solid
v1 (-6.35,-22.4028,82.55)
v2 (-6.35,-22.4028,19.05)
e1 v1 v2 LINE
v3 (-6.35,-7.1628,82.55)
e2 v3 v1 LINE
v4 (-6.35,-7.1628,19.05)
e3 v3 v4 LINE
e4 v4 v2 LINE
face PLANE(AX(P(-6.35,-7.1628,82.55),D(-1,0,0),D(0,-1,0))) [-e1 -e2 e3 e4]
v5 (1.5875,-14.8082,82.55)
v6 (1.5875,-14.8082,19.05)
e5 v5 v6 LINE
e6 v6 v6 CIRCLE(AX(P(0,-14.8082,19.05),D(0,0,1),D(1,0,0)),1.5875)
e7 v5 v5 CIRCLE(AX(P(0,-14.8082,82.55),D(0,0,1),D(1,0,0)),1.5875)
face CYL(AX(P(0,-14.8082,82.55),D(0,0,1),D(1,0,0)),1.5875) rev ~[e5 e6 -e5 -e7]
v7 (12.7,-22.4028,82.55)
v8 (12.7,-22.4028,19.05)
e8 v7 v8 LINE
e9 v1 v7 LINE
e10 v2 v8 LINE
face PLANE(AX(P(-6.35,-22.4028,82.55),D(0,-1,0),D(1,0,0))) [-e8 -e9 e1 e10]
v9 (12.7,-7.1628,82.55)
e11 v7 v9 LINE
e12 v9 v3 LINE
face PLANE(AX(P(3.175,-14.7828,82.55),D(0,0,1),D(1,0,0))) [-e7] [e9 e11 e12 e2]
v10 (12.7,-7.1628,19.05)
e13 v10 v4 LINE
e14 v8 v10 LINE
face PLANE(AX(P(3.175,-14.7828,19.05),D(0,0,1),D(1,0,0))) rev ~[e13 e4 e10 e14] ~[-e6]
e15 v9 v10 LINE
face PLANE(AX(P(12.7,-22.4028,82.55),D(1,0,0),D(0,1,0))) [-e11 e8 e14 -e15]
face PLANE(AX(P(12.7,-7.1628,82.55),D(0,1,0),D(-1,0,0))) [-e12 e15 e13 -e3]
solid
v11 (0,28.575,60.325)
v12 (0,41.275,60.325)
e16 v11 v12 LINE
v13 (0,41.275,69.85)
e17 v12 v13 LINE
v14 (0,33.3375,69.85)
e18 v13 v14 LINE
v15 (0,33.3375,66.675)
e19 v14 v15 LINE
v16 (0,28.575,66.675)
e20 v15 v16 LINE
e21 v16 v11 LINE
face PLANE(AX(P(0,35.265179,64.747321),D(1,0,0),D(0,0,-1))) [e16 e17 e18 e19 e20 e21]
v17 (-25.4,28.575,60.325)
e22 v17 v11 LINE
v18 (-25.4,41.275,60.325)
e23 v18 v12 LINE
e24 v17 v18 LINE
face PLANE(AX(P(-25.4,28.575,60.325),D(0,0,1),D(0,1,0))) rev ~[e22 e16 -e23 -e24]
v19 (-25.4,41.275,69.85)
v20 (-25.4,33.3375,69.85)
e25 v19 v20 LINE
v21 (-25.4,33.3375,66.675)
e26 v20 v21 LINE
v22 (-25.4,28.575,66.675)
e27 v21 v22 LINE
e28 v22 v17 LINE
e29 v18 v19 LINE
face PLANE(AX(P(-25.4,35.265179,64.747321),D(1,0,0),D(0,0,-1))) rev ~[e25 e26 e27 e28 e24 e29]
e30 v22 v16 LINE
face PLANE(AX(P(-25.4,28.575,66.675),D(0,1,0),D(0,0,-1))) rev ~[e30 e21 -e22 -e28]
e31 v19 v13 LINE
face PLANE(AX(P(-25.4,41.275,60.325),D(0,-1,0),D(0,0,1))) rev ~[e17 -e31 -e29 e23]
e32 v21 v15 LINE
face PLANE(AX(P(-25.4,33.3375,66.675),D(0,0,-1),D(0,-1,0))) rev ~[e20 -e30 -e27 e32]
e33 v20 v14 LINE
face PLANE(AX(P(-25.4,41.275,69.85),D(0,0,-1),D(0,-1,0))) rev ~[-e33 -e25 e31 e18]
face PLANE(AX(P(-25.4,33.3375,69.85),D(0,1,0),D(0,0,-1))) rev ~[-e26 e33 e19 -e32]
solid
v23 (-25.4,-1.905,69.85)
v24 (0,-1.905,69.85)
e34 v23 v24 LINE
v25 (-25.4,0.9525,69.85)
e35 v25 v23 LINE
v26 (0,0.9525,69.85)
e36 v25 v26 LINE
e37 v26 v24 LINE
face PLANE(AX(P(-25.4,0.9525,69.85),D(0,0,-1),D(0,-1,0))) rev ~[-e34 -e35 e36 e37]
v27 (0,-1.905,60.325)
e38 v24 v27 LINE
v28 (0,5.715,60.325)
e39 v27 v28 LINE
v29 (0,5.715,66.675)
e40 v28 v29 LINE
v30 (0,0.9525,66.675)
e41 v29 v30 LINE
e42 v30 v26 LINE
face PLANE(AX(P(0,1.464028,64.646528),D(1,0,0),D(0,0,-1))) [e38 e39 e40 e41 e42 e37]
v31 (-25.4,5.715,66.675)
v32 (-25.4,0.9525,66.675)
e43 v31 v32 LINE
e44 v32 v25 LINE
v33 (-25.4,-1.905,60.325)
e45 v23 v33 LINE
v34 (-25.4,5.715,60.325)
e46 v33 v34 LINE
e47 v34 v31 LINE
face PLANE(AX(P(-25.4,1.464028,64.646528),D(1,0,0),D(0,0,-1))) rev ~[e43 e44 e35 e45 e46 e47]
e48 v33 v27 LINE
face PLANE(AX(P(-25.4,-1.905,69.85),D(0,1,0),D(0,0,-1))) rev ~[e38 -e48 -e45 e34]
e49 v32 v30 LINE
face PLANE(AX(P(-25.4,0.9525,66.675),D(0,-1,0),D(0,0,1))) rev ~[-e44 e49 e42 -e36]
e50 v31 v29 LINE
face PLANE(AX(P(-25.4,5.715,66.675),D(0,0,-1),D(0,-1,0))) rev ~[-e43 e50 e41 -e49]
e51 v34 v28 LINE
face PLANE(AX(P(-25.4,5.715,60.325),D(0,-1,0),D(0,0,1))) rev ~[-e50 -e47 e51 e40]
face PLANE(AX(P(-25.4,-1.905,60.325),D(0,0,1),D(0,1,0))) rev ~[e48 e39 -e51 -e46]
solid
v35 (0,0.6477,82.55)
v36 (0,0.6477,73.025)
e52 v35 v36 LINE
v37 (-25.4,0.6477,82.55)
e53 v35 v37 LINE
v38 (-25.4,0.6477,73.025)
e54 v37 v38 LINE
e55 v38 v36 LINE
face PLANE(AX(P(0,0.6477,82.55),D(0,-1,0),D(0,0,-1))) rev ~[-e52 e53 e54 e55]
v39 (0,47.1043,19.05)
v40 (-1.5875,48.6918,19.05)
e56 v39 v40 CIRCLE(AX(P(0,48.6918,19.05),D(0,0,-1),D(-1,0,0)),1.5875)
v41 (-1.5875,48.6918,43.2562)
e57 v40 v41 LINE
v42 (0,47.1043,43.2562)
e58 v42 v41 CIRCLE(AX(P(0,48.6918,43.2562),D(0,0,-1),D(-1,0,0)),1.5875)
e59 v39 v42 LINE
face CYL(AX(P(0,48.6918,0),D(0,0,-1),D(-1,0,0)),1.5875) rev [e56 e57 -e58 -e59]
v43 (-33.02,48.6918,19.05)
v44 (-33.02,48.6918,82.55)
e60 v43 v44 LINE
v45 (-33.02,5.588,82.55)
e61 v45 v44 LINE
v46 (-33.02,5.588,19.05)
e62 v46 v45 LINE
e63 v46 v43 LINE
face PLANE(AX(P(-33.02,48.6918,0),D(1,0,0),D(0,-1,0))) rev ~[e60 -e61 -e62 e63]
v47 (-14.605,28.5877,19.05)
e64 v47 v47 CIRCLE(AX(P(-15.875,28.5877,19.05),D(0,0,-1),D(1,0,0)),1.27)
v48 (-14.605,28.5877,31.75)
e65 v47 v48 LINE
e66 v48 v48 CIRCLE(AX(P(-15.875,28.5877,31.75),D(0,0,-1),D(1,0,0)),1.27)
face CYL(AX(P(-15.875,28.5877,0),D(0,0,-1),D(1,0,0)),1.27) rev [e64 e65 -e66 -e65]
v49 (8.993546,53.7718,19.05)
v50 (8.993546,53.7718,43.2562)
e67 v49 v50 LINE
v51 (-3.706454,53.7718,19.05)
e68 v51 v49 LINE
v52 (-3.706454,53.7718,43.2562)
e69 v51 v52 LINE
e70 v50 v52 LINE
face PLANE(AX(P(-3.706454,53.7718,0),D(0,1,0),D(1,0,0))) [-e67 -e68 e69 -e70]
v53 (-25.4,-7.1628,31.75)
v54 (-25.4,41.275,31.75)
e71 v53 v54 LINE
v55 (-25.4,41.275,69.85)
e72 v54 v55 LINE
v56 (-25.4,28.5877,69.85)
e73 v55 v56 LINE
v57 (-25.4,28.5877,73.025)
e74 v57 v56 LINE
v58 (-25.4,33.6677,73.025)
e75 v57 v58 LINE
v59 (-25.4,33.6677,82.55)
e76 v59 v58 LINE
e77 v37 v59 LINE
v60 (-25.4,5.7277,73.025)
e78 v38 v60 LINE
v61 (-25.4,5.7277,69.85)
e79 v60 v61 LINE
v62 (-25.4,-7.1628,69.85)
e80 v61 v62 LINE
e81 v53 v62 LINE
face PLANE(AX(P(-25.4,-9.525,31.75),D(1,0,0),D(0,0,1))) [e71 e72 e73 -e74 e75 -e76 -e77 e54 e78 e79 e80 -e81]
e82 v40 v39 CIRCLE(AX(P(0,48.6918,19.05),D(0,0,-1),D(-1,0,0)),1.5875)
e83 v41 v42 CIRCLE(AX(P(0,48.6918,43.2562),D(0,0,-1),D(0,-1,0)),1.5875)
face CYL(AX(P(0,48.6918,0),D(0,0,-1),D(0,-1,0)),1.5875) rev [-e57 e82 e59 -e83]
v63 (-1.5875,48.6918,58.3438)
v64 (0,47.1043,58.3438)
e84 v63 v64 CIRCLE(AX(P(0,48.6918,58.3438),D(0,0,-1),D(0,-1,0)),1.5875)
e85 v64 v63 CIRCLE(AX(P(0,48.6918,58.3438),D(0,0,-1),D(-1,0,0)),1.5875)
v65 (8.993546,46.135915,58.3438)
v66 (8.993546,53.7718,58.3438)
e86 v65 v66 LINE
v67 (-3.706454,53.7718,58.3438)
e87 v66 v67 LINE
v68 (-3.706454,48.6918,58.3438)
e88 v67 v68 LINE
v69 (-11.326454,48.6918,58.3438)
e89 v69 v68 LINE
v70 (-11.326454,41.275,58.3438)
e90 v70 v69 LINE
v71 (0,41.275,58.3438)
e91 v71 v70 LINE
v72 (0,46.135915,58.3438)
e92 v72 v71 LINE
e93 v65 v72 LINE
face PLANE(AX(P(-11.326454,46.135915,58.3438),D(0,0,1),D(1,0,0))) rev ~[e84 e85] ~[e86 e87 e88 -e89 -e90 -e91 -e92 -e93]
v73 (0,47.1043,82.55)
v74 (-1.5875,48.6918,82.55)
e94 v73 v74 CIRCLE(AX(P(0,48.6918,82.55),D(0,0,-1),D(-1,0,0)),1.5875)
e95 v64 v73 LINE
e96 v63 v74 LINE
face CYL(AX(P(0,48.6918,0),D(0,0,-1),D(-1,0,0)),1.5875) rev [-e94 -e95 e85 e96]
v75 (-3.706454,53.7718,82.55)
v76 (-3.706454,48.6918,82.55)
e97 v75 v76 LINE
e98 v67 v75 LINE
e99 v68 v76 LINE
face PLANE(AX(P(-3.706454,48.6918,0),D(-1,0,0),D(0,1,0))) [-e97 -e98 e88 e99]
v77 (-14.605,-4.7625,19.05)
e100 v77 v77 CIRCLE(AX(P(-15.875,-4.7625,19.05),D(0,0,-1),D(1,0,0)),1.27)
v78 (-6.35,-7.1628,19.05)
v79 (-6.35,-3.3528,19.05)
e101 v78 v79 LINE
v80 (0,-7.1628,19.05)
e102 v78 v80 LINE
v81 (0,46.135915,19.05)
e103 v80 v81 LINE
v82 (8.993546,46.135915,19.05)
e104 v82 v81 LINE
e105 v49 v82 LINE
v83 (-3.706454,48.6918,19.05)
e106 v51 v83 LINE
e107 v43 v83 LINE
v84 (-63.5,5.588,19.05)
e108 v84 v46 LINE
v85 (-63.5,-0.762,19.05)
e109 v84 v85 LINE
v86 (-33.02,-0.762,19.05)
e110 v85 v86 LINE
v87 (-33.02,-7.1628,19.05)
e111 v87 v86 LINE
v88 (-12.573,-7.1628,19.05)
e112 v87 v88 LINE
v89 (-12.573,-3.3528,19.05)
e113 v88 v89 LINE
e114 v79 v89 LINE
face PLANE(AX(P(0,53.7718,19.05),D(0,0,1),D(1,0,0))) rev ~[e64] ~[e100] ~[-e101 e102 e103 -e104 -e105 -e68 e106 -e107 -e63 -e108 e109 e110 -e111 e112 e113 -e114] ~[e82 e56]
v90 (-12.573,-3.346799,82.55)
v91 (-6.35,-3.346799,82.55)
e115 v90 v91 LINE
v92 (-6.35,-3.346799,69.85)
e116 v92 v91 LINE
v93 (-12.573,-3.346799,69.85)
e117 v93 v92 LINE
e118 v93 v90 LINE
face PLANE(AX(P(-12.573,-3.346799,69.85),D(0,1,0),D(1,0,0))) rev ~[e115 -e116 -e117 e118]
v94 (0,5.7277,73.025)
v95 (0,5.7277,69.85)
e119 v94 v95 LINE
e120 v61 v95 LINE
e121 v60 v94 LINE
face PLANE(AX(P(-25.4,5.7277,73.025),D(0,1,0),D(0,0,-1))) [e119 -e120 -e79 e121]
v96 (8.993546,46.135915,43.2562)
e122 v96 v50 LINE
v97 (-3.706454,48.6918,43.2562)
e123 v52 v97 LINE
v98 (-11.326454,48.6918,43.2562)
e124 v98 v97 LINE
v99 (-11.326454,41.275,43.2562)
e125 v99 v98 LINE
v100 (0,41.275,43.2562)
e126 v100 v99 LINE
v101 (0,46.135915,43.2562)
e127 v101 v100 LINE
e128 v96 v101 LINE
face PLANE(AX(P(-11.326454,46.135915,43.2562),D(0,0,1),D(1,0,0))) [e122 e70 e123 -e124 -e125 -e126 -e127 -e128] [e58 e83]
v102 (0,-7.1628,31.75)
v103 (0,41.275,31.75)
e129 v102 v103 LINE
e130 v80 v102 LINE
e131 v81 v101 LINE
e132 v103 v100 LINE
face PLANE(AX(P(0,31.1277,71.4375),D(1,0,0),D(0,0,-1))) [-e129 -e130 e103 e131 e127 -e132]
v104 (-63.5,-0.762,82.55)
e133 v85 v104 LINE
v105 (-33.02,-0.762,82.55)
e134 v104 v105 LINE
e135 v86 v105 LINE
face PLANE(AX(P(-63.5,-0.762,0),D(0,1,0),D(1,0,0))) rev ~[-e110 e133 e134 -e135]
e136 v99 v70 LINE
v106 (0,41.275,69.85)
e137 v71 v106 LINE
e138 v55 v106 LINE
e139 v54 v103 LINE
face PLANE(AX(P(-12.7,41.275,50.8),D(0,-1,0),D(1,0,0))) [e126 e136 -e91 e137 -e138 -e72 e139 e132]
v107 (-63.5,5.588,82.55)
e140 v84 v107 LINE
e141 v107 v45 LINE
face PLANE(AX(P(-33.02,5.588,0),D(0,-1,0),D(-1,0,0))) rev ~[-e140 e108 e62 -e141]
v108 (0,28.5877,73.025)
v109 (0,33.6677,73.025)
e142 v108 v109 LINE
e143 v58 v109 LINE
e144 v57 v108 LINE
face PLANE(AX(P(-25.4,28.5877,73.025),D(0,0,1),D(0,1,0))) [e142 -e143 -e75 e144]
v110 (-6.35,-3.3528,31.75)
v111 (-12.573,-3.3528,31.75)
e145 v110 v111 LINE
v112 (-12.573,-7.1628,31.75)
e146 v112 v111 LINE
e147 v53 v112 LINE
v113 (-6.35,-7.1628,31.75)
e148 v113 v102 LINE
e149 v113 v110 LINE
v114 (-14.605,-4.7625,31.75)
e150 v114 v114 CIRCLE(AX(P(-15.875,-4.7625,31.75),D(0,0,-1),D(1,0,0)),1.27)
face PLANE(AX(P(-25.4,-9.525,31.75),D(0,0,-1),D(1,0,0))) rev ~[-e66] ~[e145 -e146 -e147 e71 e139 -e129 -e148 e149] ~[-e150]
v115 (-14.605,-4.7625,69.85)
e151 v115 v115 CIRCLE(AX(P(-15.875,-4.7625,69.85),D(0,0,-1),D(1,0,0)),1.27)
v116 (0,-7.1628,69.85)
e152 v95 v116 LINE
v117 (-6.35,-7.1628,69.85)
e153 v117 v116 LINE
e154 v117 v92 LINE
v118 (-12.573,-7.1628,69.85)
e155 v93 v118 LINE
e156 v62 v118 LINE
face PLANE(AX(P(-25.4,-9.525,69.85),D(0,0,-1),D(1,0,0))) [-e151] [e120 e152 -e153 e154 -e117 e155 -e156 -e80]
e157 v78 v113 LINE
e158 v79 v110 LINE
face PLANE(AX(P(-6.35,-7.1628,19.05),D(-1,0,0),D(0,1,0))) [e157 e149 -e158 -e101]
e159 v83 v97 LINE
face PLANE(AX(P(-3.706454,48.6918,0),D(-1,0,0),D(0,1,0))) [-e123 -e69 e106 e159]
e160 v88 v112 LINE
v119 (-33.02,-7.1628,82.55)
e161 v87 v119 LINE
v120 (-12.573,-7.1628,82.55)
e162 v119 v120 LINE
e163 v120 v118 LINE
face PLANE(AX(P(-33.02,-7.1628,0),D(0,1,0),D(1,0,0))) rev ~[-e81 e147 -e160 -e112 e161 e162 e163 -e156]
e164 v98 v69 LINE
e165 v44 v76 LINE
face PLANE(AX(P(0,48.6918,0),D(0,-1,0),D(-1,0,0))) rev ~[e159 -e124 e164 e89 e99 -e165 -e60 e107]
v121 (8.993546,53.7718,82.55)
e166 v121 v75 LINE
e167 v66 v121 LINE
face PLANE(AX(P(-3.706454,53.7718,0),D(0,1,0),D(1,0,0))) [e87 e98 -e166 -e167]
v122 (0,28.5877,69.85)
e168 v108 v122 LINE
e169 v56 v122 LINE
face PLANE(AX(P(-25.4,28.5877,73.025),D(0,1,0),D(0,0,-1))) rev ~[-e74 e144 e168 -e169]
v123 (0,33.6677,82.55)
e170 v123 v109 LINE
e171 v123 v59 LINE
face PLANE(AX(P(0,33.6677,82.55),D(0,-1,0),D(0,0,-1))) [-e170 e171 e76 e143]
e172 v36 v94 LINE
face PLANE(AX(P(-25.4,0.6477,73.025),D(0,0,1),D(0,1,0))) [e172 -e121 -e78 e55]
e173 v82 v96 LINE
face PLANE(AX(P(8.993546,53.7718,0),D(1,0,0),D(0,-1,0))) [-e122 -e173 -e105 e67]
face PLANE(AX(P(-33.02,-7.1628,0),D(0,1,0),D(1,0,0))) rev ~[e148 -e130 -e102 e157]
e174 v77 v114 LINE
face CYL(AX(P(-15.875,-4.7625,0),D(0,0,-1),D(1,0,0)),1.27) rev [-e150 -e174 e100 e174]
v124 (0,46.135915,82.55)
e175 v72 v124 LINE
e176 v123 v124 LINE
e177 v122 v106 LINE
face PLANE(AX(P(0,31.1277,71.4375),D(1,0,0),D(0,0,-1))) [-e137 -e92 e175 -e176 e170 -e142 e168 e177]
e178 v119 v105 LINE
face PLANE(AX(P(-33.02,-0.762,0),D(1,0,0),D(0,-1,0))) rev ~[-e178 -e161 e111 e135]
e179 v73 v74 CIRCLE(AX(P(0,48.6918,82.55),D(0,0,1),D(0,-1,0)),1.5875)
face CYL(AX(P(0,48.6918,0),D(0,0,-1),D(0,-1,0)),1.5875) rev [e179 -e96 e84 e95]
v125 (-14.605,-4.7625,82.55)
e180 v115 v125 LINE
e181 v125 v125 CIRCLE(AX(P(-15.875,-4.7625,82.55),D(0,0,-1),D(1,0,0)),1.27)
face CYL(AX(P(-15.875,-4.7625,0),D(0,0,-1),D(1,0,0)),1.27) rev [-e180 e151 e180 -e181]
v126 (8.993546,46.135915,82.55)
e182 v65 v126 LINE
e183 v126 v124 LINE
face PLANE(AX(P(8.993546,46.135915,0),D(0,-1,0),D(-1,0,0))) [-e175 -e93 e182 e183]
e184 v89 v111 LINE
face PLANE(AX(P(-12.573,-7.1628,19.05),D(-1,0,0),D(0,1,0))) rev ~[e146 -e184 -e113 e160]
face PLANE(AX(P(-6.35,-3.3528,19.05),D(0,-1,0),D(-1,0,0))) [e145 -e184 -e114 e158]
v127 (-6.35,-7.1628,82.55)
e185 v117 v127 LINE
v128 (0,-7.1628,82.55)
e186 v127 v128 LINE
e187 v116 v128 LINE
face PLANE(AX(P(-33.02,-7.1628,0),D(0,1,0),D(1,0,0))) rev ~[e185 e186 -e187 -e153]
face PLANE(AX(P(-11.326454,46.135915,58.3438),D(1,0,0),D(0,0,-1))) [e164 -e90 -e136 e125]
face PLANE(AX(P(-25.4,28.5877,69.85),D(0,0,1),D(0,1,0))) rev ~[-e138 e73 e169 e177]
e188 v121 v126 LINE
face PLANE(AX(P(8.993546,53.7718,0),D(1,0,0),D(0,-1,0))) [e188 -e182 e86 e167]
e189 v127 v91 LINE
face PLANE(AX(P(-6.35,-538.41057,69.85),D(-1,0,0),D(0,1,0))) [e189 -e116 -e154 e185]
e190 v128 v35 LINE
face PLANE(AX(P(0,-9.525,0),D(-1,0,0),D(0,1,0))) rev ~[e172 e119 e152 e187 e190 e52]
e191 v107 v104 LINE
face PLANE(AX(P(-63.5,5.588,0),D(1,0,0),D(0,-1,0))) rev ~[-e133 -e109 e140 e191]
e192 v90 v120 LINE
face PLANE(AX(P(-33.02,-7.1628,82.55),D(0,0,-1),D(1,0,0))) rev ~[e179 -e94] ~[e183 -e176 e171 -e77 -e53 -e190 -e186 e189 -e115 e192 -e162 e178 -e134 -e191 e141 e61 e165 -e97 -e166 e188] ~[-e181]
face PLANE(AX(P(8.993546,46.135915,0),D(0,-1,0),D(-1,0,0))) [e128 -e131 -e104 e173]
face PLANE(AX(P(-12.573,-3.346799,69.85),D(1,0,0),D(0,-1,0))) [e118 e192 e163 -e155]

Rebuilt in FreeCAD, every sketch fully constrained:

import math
import FreeCAD as App
import Part
import Sketcher

V = App.Vector
Q = App.Units.Quantity


def add_polygon(sketch, points):
    """Adds a closed chain of lines whose ends are joined by coincident constraints."""
    first, n = sketch.GeometryCount, len(points)
    for a, b in zip(points, points[1:] + points[:1]):
        sketch.addGeometry(Part.LineSegment(App.Vector(*a, 0), App.Vector(*b, 0)), False)
    for i in range(n):
        sketch.addConstraint(Sketcher.Constraint("Coincident", first + i, 2, first + (i + 1) % n, 1))

doc = App.newDocument("Part")
params = doc.addObject("Spreadsheet::Sheet", "Params")
for row, (alias, value) in enumerate([
    ("sketch1_diameter", "0.1 in"),
    ("sketch1_width", "1.3 in"),
    ("sketch1_width2", "1.2 in"),
    ("sketch1_height", "0.25 in"),
    ("sketch1_height2", "1.697 in"),
    ("pad1_length", "4 in"),
    ("sketch2_width", "1 in"),
    ("sketch2_height", "1.5 in"),
    ("pocket1_length", "2 in"),
    ("sketch3_width", "1.3 in"),
    ("sketch3_height", "0.093 in"),
    ("sketch4_width", "0.5 in"),
    ("sketch4_height", "0.2 in"),
    ("sketch4_radius", "0.0625 in"),
    ("pad2_length", "4 in"),
    ("sketch5_diameter", "0.125 in"),
    ("pocket3_length", "4 in"),
    ("sketch6_width", "1.3 in"),
    ("sketch6_height", "0.75 in"),
    ("sketch7_height", "0.75 in"),
    ("sketch8_height", "0.594 in"),
    ("pocket6_length", "0.8 in"),
    ("sketch9_width", "1.2 in"),
    ("sketch9_height", "0.75 in"),
    ("sketch10_width", "1.3 in"),
    ("sketch10_height", "0.5 in"),
    ("pocket8_length", "1 in"),
    ("sketch11_width", "0.2 in"),
    ("sketch11_height", "0.125 in"),
    ("pad3_length", "1 in"),
    ("sketch12_width", "0.245 in"),
    ("pocket9_length", "105.670466 mm"),
    ("pocket9_length2", "0.5 in"),
    ("sketch13_height", "0.15 in"),
    ("sketch13_width", "0.245 in"),
    ("pocket10_length", "0.5 in"),
    ("sketch14_height", "0.594 in"),
    ("pocket11_length", "0.192 in"),
    ("sketch15_width", "0.3 in"),
    ("sketch15_height", "0.25 in"),
    ("sketch15_width2", "0.1875 in"),
    ("sketch15_height2", "0.125 in"),
    ("pad4_length", "1 in"),
    ("sketch16_width", "0.5 in"),
    ("sketch16_height", "0.25 in"),
    ("sketch16_width2", "0.3125 in"),
    ("sketch16_height2", "0.375 in"),
    ("pad5_length", "1 in"),
    ("sketch17_diameter", "0.125 in"),
    ("sketch17_height", "0.6 in"),
    ("sketch17_width", "0.75 in"),
    ("pad6_length", "2.5 in"),
], start=1):
    params.set(f"A{row}", alias)
    params.set(f"B{row}", "=" + value)
    params.setAlias(f"B{row}", alias)

body = doc.addObject("PartDesign::Body", "Body")

sketch1 = body.newObject("Sketcher::SketchObject", "Sketch")
sketch1.AttachmentSupport = (doc.getObject("XY_Plane"), [""])
sketch1.MapMode = "FlatFace"
add_polygon(sketch1, [(0, 48.6918), (-33.02, 48.6918), (-33.02, 5.588), (-63.5, 5.588), (-63.5, -0.762), (-33.02, -0.762), (-33.02, -9.525), (0, -9.525)])
sketch1.addGeometry(Part.Circle(V(-15.875, -4.7625, 0), V(0, 0, 1), 1.27), False)
sketch1.addGeometry(Part.Circle(V(-15.875, 28.5877, 0), V(0, 0, 1), 1.27), False)
sketch1.addConstraint(Sketcher.Constraint("Horizontal", 0))
sketch1.addConstraint(Sketcher.Constraint("Vertical", 1))
sketch1.addConstraint(Sketcher.Constraint("Horizontal", 2))
sketch1.addConstraint(Sketcher.Constraint("Vertical", 3))
sketch1.addConstraint(Sketcher.Constraint("Horizontal", 4))
sketch1.addConstraint(Sketcher.Constraint("Vertical", 5))
sketch1.addConstraint(Sketcher.Constraint("Horizontal", 6))
sketch1.addConstraint(Sketcher.Constraint("Vertical", 7))
sketch1.addConstraint(Sketcher.Constraint("Equal", 8, 9))
sketch1.addConstraint(Sketcher.Constraint("PointOnObject", 6, 2, -2))
sketch1.addConstraint(Sketcher.Constraint("Vertical", 8, 3, 9, 3))
sketch1.addConstraint(Sketcher.Constraint("Vertical", 1, 2, 4, 2))
sketch1.addConstraint(Sketcher.Constraint("Diameter", 8, Q("0.1 in")))
sketch1.addConstraint(Sketcher.Constraint("DistanceX", 0, 2, 0, 1, Q("1.3 in")))
sketch1.addConstraint(Sketcher.Constraint("DistanceX", 2, 2, 2, 1, Q("1.2 in")))
sketch1.addConstraint(Sketcher.Constraint("DistanceY", 3, 2, 3, 1, Q("0.25 in")))
sketch1.addConstraint(Sketcher.Constraint("DistanceY", 1, 2, 1, 1, Q("1.697 in")))
sketch1.addConstraint(Sketcher.Constraint("DistanceY", 5, 2, 5, 1, Q("0.345 in")))
sketch1.addConstraint(Sketcher.Constraint("DistanceY", -1, 1, 1, 2, Q("0.22 in")))
sketch1.addConstraint(Sketcher.Constraint("DistanceX", 8, 3, -1, 1, Q("0.625 in")))
sketch1.addConstraint(Sketcher.Constraint("DistanceY", 8, 3, -1, 1, Q("0.1875 in")))
sketch1.addConstraint(Sketcher.Constraint("DistanceY", 8, 3, 9, 3, Q("1.313 in")))
sketch1.setExpression("Constraints[20]", "Params.sketch1_diameter")
sketch1.setExpression("Constraints[21]", "Params.sketch1_width")
sketch1.setExpression("Constraints[22]", "Params.sketch1_width2")
sketch1.setExpression("Constraints[23]", "Params.sketch1_height")
sketch1.setExpression("Constraints[24]", "Params.sketch1_height2")
pad1 = body.newObject("PartDesign::Pad", "Pad")
pad1.Profile = sketch1
pad1.setExpression("Length", "Params.pad1_length")

sketch2 = body.newObject("Sketcher::SketchObject", "Sketch001")
sketch2.AttachmentSupport = (doc.getObject("XZ_Plane"), [""])
sketch2.MapMode = "FlatFace"
sketch2.AttachmentOffset = App.Placement(V(0, 0, 0.375 * 25.4), App.Rotation())
add_polygon(sketch2, [(-25.4, 69.85), (-25.4, 31.75), (0, 31.75), (0, 69.85)])
sketch2.addConstraint(Sketcher.Constraint("Vertical", 0))
sketch2.addConstraint(Sketcher.Constraint("Horizontal", 1))
sketch2.addConstraint(Sketcher.Constraint("Vertical", 2))
sketch2.addConstraint(Sketcher.Constraint("Horizontal", 3))
sketch2.addConstraint(Sketcher.Constraint("PointOnObject", 1, 2, -2))
sketch2.addConstraint(Sketcher.Constraint("DistanceX", 1, 1, 1, 2, Q("1 in")))
sketch2.addConstraint(Sketcher.Constraint("DistanceY", 0, 2, 0, 1, Q("1.5 in")))
sketch2.addConstraint(Sketcher.Constraint("DistanceY", -1, 1, 0, 2, Q("1.25 in")))
sketch2.setExpression("Constraints[9]", "Params.sketch2_width")
sketch2.setExpression("Constraints[10]", "Params.sketch2_height")
pocket1 = body.newObject("PartDesign::Pocket", "Pocket")
pocket1.Profile = sketch2
pocket1.setExpression("Length", "Params.pocket1_length")

sketch3 = body.newObject("Sketcher::SketchObject", "Sketch002")
sketch3.AttachmentSupport = (doc.getObject("XY_Plane"), [""])
sketch3.MapMode = "FlatFace"
sketch3.AttachmentOffset = App.Placement(V(0, 0, 4 * 25.4), App.Rotation())
add_polygon(sketch3, [(-33.02, -7.1628), (-33.02, -9.525), (0, -9.525), (0, -7.1628)])
sketch3.addConstraint(Sketcher.Constraint("Vertical", 0))
sketch3.addConstraint(Sketcher.Constraint("Horizontal", 1))
sketch3.addConstraint(Sketcher.Constraint("Vertical", 2))
sketch3.addConstraint(Sketcher.Constraint("Horizontal", 3))
sketch3.addConstraint(Sketcher.Constraint("PointOnObject", 1, 2, -2))
sketch3.addConstraint(Sketcher.Constraint("DistanceX", 1, 1, 1, 2, Q("1.3 in")))
sketch3.addConstraint(Sketcher.Constraint("DistanceY", 0, 2, 0, 1, Q("0.093 in")))
sketch3.addConstraint(Sketcher.Constraint("DistanceY", 0, 2, -1, 1, Q("0.375 in")))
sketch3.setExpression("Constraints[9]", "Params.sketch3_width")
sketch3.setExpression("Constraints[10]", "Params.sketch3_height")
pocket2 = body.newObject("PartDesign::Pocket", "Pocket001")
pocket2.Profile = sketch3
pocket2.Type = "ThroughAll"
pocket2.Midplane = True

sketch4 = body.newObject("Sketcher::SketchObject", "Sketch003")
sketch4.AttachmentSupport = (doc.getObject("XY_Plane"), [""])
sketch4.MapMode = "FlatFace"
sketch4.addGeometry(Part.LineSegment(V(-1.5875, 48.6918, 0), V(-3.706454, 48.6918, 0)), False)
sketch4.addGeometry(Part.LineSegment(V(-3.706454, 48.6918, 0), V(-3.706454, 53.7718, 0)), False)
sketch4.addGeometry(Part.LineSegment(V(-3.706454, 53.7718, 0), V(8.993546, 53.7718, 0)), False)
sketch4.addGeometry(Part.LineSegment(V(8.993546, 53.7718, 0), V(8.993546, 46.135915, 0)), False)
sketch4.addGeometry(Part.LineSegment(V(8.993546, 46.135915, 0), V(0, 46.135915, 0)), False)
sketch4.addGeometry(Part.LineSegment(V(0, 46.135915, 0), V(0, 47.1043, 0)), False)
sketch4.addGeometry(Part.ArcOfCircle(Part.Circle(V(0, 48.6918, 0), V(0, 0, 1), 1.5875), math.radians(-90), math.radians(180)), False)
sketch4.addConstraint(Sketcher.Constraint("Coincident", 0, 2, 1, 1))
sketch4.addConstraint(Sketcher.Constraint("Coincident", 1, 2, 2, 1))
sketch4.addConstraint(Sketcher.Constraint("Coincident", 2, 2, 3, 1))
sketch4.addConstraint(Sketcher.Constraint("Coincident", 3, 2, 4, 1))
sketch4.addConstraint(Sketcher.Constraint("Coincident", 4, 2, 5, 1))
sketch4.addConstraint(Sketcher.Constraint("Coincident", 5, 2, 6, 1))
sketch4.addConstraint(Sketcher.Constraint("Coincident", 6, 2, 0, 1))
sketch4.addConstraint(Sketcher.Constraint("Horizontal", 0))
sketch4.addConstraint(Sketcher.Constraint("Vertical", 1))
sketch4.addConstraint(Sketcher.Constraint("Horizontal", 2))
sketch4.addConstraint(Sketcher.Constraint("Vertical", 3))
sketch4.addConstraint(Sketcher.Constraint("Horizontal", 4))
sketch4.addConstraint(Sketcher.Constraint("Vertical", 5))
sketch4.addConstraint(Sketcher.Constraint("PointOnObject", 6, 3, -2))
sketch4.addConstraint(Sketcher.Constraint("PointOnObject", 4, 2, -2))
sketch4.addConstraint(Sketcher.Constraint("Horizontal", 6, 3, 0, 2))
sketch4.addConstraint(Sketcher.Constraint("DistanceX", 2, 1, 2, 2, Q("0.5 in")))
sketch4.addConstraint(Sketcher.Constraint("DistanceY", 1, 1, 1, 2, Q("0.2 in")))
sketch4.addConstraint(Sketcher.Constraint("Radius", 6, Q("0.0625 in")))
sketch4.addConstraint(Sketcher.Constraint("DistanceY", -1, 1, 6, 3, Q("1.917 in")))
sketch4.addConstraint(Sketcher.Constraint("DistanceX", 0, 2, 0, 1, 2.118954))
sketch4.addConstraint(Sketcher.Constraint("DistanceY", 3, 2, 3, 1, 7.635885))
sketch4.setExpression("Constraints[16]", "Params.sketch4_width")
sketch4.setExpression("Constraints[17]", "Params.sketch4_height")
sketch4.setExpression("Constraints[18]", "Params.sketch4_radius")
pad2 = body.newObject("PartDesign::Pad", "Pad001")
pad2.Profile = sketch4
pad2.setExpression("Length", "Params.pad2_length")

sketch5 = body.newObject("Sketcher::SketchObject", "Sketch004")
sketch5.AttachmentSupport = (doc.getObject("XY_Plane"), [""])
sketch5.MapMode = "FlatFace"
sketch5.addGeometry(Part.Circle(V(0, 48.6918, 0), V(0, 0, 1), 1.5875), False)
sketch5.addConstraint(Sketcher.Constraint("PointOnObject", 0, 3, -2))
sketch5.addConstraint(Sketcher.Constraint("Diameter", 0, Q("0.125 in")))
sketch5.addConstraint(Sketcher.Constraint("DistanceY", -1, 1, 0, 3, Q("1.917 in")))
sketch5.setExpression("Constraints[1]", "Params.sketch5_diameter")
pocket3 = body.newObject("PartDesign::Pocket", "Pocket002")
pocket3.Profile = sketch5
pocket3.setExpression("Length", "Params.pocket3_length")
pocket3.Reversed = True

sketch6 = body.newObject("Sketcher::SketchObject", "Sketch005")
sketch6.AttachmentSupport = (doc.getObject("XZ_Plane"), [""])
sketch6.MapMode = "FlatFace"
sketch6.AttachmentOffset = App.Placement(V(0, 0, 0.282 * 25.4), App.Rotation())
add_polygon(sketch6, [(-33.02, 101.6), (-33.02, 82.55), (0, 82.55), (0, 101.6)])
add_polygon(sketch6, [(-33.02, 19.05), (-33.02, 0), (0, 0), (0, 19.05)])
sketch6.addConstraint(Sketcher.Constraint("Vertical", 0))
sketch6.addConstraint(Sketcher.Constraint("Horizontal", 1))
sketch6.addConstraint(Sketcher.Constraint("Vertical", 2))
sketch6.addConstraint(Sketcher.Constraint("Horizontal", 3))
sketch6.addConstraint(Sketcher.Constraint("Vertical", 4))
sketch6.addConstraint(Sketcher.Constraint("Horizontal", 5))
sketch6.addConstraint(Sketcher.Constraint("Vertical", 6))
sketch6.addConstraint(Sketcher.Constraint("Horizontal", 7))
sketch6.addConstraint(Sketcher.Constraint("Coincident", 5, 2, -1, 1))
sketch6.addConstraint(Sketcher.Constraint("PointOnObject", 1, 2, -2))
sketch6.addConstraint(Sketcher.Constraint("Vertical", 3, 2, 4, 2))
sketch6.addConstraint(Sketcher.Constraint("Equal", 2, 4))
sketch6.addConstraint(Sketcher.Constraint("DistanceX", 1, 1, 1, 2, Q("1.3 in")))
sketch6.addConstraint(Sketcher.Constraint("DistanceY", -1, 1, 2, 2, Q("4 in")))
sketch6.addConstraint(Sketcher.Constraint("DistanceY", 0, 2, 0, 1, Q("0.75 in")))
sketch6.setExpression("Constraints[20]", "Params.sketch6_width")
sketch6.setExpression("Constraints[22]", "Params.sketch6_height")
pocket4 = body.newObject("PartDesign::Pocket", "Pocket003")
pocket4.Profile = sketch6
pocket4.Type = "ThroughAll"

sketch7 = body.newObject("Sketcher::SketchObject", "Sketch006")
sketch7.AttachmentSupport = (doc.getObject("XZ_Plane"), [""])
sketch7.MapMode = "FlatFace"
sketch7.AttachmentOffset = App.Placement(V(0, 0, -2.117 * 25.4), App.Rotation())
add_polygon(sketch7, [(0, 82.55), (0, 101.6), (8.993546, 101.6), (8.993546, 82.55)])
add_polygon(sketch7, [(0, 0), (0, 19.05), (8.993546, 19.05), (8.993546, 0)])
sketch7.addConstraint(Sketcher.Constraint("Vertical", 0))
sketch7.addConstraint(Sketcher.Constraint("Horizontal", 1))
sketch7.addConstraint(Sketcher.Constraint("Vertical", 2))
sketch7.addConstraint(Sketcher.Constraint("Horizontal", 3))
sketch7.addConstraint(Sketcher.Constraint("Vertical", 4))
sketch7.addConstraint(Sketcher.Constraint("Horizontal", 5))
sketch7.addConstraint(Sketcher.Constraint("Vertical", 6))
sketch7.addConstraint(Sketcher.Constraint("Horizontal", 7))
sketch7.addConstraint(Sketcher.Constraint("Coincident", 7, 2, -1, 1))
sketch7.addConstraint(Sketcher.Constraint("PointOnObject", 0, 2, -2))
sketch7.addConstraint(Sketcher.Constraint("Vertical", 2, 2, 5, 2))
sketch7.addConstraint(Sketcher.Constraint("Equal", 2, 4))
sketch7.addConstraint(Sketcher.Constraint("DistanceY", -1, 1, 0, 2, Q("4 in")))
sketch7.addConstraint(Sketcher.Constraint("DistanceY", 0, 1, 0, 2, Q("0.75 in")))
sketch7.addConstraint(Sketcher.Constraint("DistanceX", 1, 1, 1, 2, 8.993546))
sketch7.setExpression("Constraints[21]", "Params.sketch7_height")
pocket5 = body.newObject("PartDesign::Pocket", "Pocket004")
pocket5.Profile = sketch7
pocket5.Type = "ThroughAll"
pocket5.Reversed = True

sketch8 = body.newObject("Sketcher::SketchObject", "Sketch007")
sketch8.AttachmentSupport = (doc.getObject("YZ_Plane"), [""])
sketch8.MapMode = "FlatFace"
sketch8.AttachmentOffset = App.Placement(V(0, 0, 8.993546), App.Rotation())
add_polygon(sketch8, [(53.7718, 58.3438), (46.135915, 58.3438), (46.135915, 43.2562), (53.7718, 43.2562)])
sketch8.addConstraint(Sketcher.Constraint("Horizontal", 0))
sketch8.addConstraint(Sketcher.Constraint("Vertical", 1))
sketch8.addConstraint(Sketcher.Constraint("Horizontal", 2))
sketch8.addConstraint(Sketcher.Constraint("Vertical", 3))
sketch8.addConstraint(Sketcher.Constraint("DistanceY", 1, 2, 1, 1, Q("0.594 in")))
sketch8.addConstraint(Sketcher.Constraint("DistanceY", -1, 1, 0, 2, Q("2.297 in")))
sketch8.addConstraint(Sketcher.Constraint("DistanceX", -1, 1, 2, 2, Q("2.117 in")))
sketch8.addConstraint(Sketcher.Constraint("DistanceX", 0, 2, 0, 1, 7.635885))
sketch8.setExpression("Constraints[8]", "Params.sketch8_height")
pocket6 = body.newObject("PartDesign::Pocket", "Pocket005")
pocket6.Profile = sketch8
pocket6.setExpression("Length", "Params.pocket6_length")

sketch9 = body.newObject("Sketcher::SketchObject", "Sketch008")
sketch9.AttachmentSupport = (doc.getObject("XZ_Plane"), [""])
sketch9.MapMode = "FlatFace"
sketch9.AttachmentOffset = App.Placement(V(0, 0, -0.22 * 25.4), App.Rotation())
add_polygon(sketch9, [(-63.5, 0), (-63.5, 19.05), (-33.02, 19.05), (-33.02, 0)])
add_polygon(sketch9, [(-63.5, 82.55), (-63.5, 101.6), (-33.02, 101.6), (-33.02, 82.55)])
sketch9.addConstraint(Sketcher.Constraint("Vertical", 0))
sketch9.addConstraint(Sketcher.Constraint("Horizontal", 1))
sketch9.addConstraint(Sketcher.Constraint("Vertical", 2))
sketch9.addConstraint(Sketcher.Constraint("Horizontal", 3))
sketch9.addConstraint(Sketcher.Constraint("Vertical", 4))
sketch9.addConstraint(Sketcher.Constraint("Horizontal", 5))
sketch9.addConstraint(Sketcher.Constraint("Vertical", 6))
sketch9.addConstraint(Sketcher.Constraint("Horizontal", 7))
sketch9.addConstraint(Sketcher.Constraint("PointOnObject", 2, 2, -1))
sketch9.addConstraint(Sketcher.Constraint("Vertical", 3, 2, 4, 2))
sketch9.addConstraint(Sketcher.Constraint("Vertical", 2, 2, 5, 2))
sketch9.addConstraint(Sketcher.Constraint("Equal", 2, 4))
sketch9.addConstraint(Sketcher.Constraint("DistanceX", 1, 1, 1, 2, Q("1.2 in")))
sketch9.addConstraint(Sketcher.Constraint("DistanceY", -1, 1, 4, 2, Q("4 in")))
sketch9.addConstraint(Sketcher.Constraint("DistanceY", 0, 1, 0, 2, Q("0.75 in")))
sketch9.addConstraint(Sketcher.Constraint("DistanceX", 0, 2, -1, 1, Q("2.5 in")))
sketch9.setExpression("Constraints[20]", "Params.sketch9_width")
sketch9.setExpression("Constraints[22]", "Params.sketch9_height")
pocket7 = body.newObject("PartDesign::Pocket", "Pocket006")
pocket7.Profile = sketch9
pocket7.Type = "ThroughAll"
pocket7.Reversed = True

sketch10 = body.newObject("Sketcher::SketchObject", "Sketch009")
sketch10.AttachmentSupport = (doc.getObject("YZ_Plane"), [""])
sketch10.MapMode = "FlatFace"
add_polygon(sketch10, [(33.6677, 82.55), (0.6477, 82.55), (0.6477, 69.85), (33.6677, 69.85)])
sketch10.addConstraint(Sketcher.Constraint("Horizontal", 0))
sketch10.addConstraint(Sketcher.Constraint("Vertical", 1))
sketch10.addConstraint(Sketcher.Constraint("Horizontal", 2))
sketch10.addConstraint(Sketcher.Constraint("Vertical", 3))
sketch10.addConstraint(Sketcher.Constraint("DistanceX", 0, 2, 0, 1, Q("1.3 in")))
sketch10.addConstraint(Sketcher.Constraint("DistanceY", 1, 2, 1, 1, Q("0.5 in")))
sketch10.addConstraint(Sketcher.Constraint("DistanceY", -1, 1, 0, 2, Q("3.25 in")))
sketch10.addConstraint(Sketcher.Constraint("DistanceX", -1, 1, 0, 2, Q("0.0255 in")))
sketch10.setExpression("Constraints[8]", "Params.sketch10_width")
sketch10.setExpression("Constraints[9]", "Params.sketch10_height")
pocket8 = body.newObject("PartDesign::Pocket", "Pocket007")
pocket8.Profile = sketch10
pocket8.setExpression("Length", "Params.pocket8_length")

sketch11 = body.newObject("Sketcher::SketchObject", "Sketch010")
sketch11.AttachmentSupport = (doc.getObject("YZ_Plane"), [""])
sketch11.MapMode = "FlatFace"
sketch11.AttachmentOffset = App.Placement(V(0, 0, -1 * 25.4), App.Rotation())
add_polygon(sketch11, [(33.6677, 73.025), (28.5877, 73.025), (28.5877, 69.85), (33.6677, 69.85)])
add_polygon(sketch11, [(5.7277, 73.025), (0.6477, 73.025), (0.6477, 69.85), (5.7277, 69.85)])
sketch11.addConstraint(Sketcher.Constraint("Horizontal", 0))
sketch11.addConstraint(Sketcher.Constraint("Vertical", 1))
sketch11.addConstraint(Sketcher.Constraint("Horizontal", 2))
sketch11.addConstraint(Sketcher.Constraint("Vertical", 3))
sketch11.addConstraint(Sketcher.Constraint("Horizontal", 4))
sketch11.addConstraint(Sketcher.Constraint("Vertical", 5))
sketch11.addConstraint(Sketcher.Constraint("Horizontal", 6))
sketch11.addConstraint(Sketcher.Constraint("Vertical", 7))
sketch11.addConstraint(Sketcher.Constraint("Horizontal", 3, 2, 4, 2))
sketch11.addConstraint(Sketcher.Constraint("Horizontal", 2, 2, 5, 2))
sketch11.addConstraint(Sketcher.Constraint("Equal", 2, 4))
sketch11.addConstraint(Sketcher.Constraint("DistanceX", 0, 2, 0, 1, Q("0.2 in")))
sketch11.addConstraint(Sketcher.Constraint("DistanceX", 4, 2, 0, 2, Q("1.1 in")))
sketch11.addConstraint(Sketcher.Constraint("DistanceY", 1, 2, 1, 1, Q("0.125 in")))
sketch11.addConstraint(Sketcher.Constraint("DistanceY", -1, 1, 1, 2, Q("2.75 in")))
sketch11.addConstraint(Sketcher.Constraint("DistanceX", -1, 1, 0, 2, Q("1.1255 in")))
sketch11.setExpression("Constraints[19]", "Params.sketch11_width")
sketch11.setExpression("Constraints[21]", "Params.sketch11_height")
pad3 = body.newObject("PartDesign::Pad", "Pad002")
pad3.Profile = sketch11
pad3.setExpression("Length", "Params.pad3_length")

sketch12 = body.newObject("Sketcher::SketchObject", "Sketch011")
sketch12.AttachmentSupport = (doc.getObject("XY_Plane"), [""])
sketch12.MapMode = "FlatFace"
sketch12.AttachmentOffset = App.Placement(V(0, 0, 3.25 * 25.4), App.Rotation())
add_polygon(sketch12, [(-12.573, -3.346799), (-12.573, -538.41057), (-6.35, -538.41057), (-6.35, -3.346799)])
sketch12.addConstraint(Sketcher.Constraint("Vertical", 0))
sketch12.addConstraint(Sketcher.Constraint("Horizontal", 1))
sketch12.addConstraint(Sketcher.Constraint("Vertical", 2))
sketch12.addConstraint(Sketcher.Constraint("Horizontal", 3))
sketch12.addConstraint(Sketcher.Constraint("DistanceX", 1, 1, 1, 2, Q("0.245 in")))
sketch12.addConstraint(Sketcher.Constraint("DistanceX", 1, 2, -1, 1, Q("0.25 in")))
sketch12.addConstraint(Sketcher.Constraint("DistanceY", 0, 2, 0, 1, 535.063771))
sketch12.addConstraint(Sketcher.Constraint("DistanceY", 2, 2, -1, 1, 3.346799))
sketch12.setExpression("Constraints[8]", "Params.sketch12_width")
pocket9 = body.newObject("PartDesign::Pocket", "Pocket008")
pocket9.Profile = sketch12
pocket9.Type = "TwoLengths"
pocket9.setExpression("Length", "Params.pocket9_length")
pocket9.setExpression("Length2", "Params.pocket9_length2")
pocket9.Reversed = True

sketch13 = body.newObject("Sketcher::SketchObject", "Sketch012")
sketch13.AttachmentSupport = (doc.getObject("XY_Plane"), [""])
sketch13.MapMode = "FlatFace"
sketch13.AttachmentOffset = App.Placement(V(0, 0, 0.75 * 25.4), App.Rotation())
add_polygon(sketch13, [(-6.35, -3.3528), (-6.35, -7.1628), (-12.573, -7.1628), (-12.573, -3.3528)])
sketch13.addConstraint(Sketcher.Constraint("Vertical", 0))
sketch13.addConstraint(Sketcher.Constraint("Horizontal", 1))
sketch13.addConstraint(Sketcher.Constraint("Vertical", 2))
sketch13.addConstraint(Sketcher.Constraint("Horizontal", 3))
sketch13.addConstraint(Sketcher.Constraint("DistanceY", 0, 2, 0, 1, Q("0.15 in")))
sketch13.addConstraint(Sketcher.Constraint("DistanceX", 1, 2, 1, 1, Q("0.245 in")))
sketch13.addConstraint(Sketcher.Constraint("DistanceX", 0, 2, -1, 1, Q("0.25 in")))
sketch13.addConstraint(Sketcher.Constraint("DistanceY", 0, 2, -1, 1, Q("0.282 in")))
sketch13.setExpression("Constraints[8]", "Params.sketch13_height")
sketch13.setExpression("Constraints[9]", "Params.sketch13_width")
pocket10 = body.newObject("PartDesign::Pocket", "Pocket009")
pocket10.Profile = sketch13
pocket10.setExpression("Length", "Params.pocket10_length")
pocket10.Reversed = True

sketch14 = body.newObject("Sketcher::SketchObject", "Sketch013")
sketch14.AttachmentSupport = (doc.getObject("XZ_Plane"), [""])
sketch14.MapMode = "FlatFace"
sketch14.AttachmentOffset = App.Placement(V(0, 0, -46.135915), App.Rotation())
add_polygon(sketch14, [(-11.326454, 43.2562), (-11.326454, 58.3438), (0, 58.3438), (0, 43.2562)])
sketch14.addConstraint(Sketcher.Constraint("Vertical", 0))
sketch14.addConstraint(Sketcher.Constraint("Horizontal", 1))
sketch14.addConstraint(Sketcher.Constraint("Vertical", 2))
sketch14.addConstraint(Sketcher.Constraint("Horizontal", 3))
sketch14.addConstraint(Sketcher.Constraint("PointOnObject", 1, 2, -2))
sketch14.addConstraint(Sketcher.Constraint("DistanceY", 0, 1, 0, 2, Q("0.594 in")))
sketch14.addConstraint(Sketcher.Constraint("DistanceY", -1, 1, 0, 2, Q("2.297 in")))
sketch14.addConstraint(Sketcher.Constraint("DistanceX", 1, 1, 1, 2, 11.326454))
sketch14.setExpression("Constraints[9]", "Params.sketch14_height")
pocket11 = body.newObject("PartDesign::Pocket", "Pocket010")
pocket11.Profile = sketch14
pocket11.setExpression("Length", "Params.pocket11_length")
pocket11.Reversed = True
body2 = doc.addObject("PartDesign::Body", "Body001")

sketch15 = body2.newObject("Sketcher::SketchObject", "Sketch014")
sketch15.AttachmentSupport = (doc.getObject("YZ_Plane001"), [""])
sketch15.MapMode = "FlatFace"
sketch15.AttachmentOffset = App.Placement(V(0, 0, -1 * 25.4), App.Rotation())
add_polygon(sketch15, [(-1.905, 60.325), (5.715, 60.325), (5.715, 66.675), (0.9525, 66.675), (0.9525, 69.85), (-1.905, 69.85)])
sketch15.addConstraint(Sketcher.Constraint("Horizontal", 0))
sketch15.addConstraint(Sketcher.Constraint("Vertical", 1))
sketch15.addConstraint(Sketcher.Constraint("Horizontal", 2))
sketch15.addConstraint(Sketcher.Constraint("Vertical", 3))
sketch15.addConstraint(Sketcher.Constraint("Horizontal", 4))
sketch15.addConstraint(Sketcher.Constraint("Vertical", 5))
sketch15.addConstraint(Sketcher.Constraint("DistanceX", 0, 1, 0, 2, Q("0.3 in")))
sketch15.addConstraint(Sketcher.Constraint("DistanceY", 1, 1, 1, 2, Q("0.25 in")))
sketch15.addConstraint(Sketcher.Constraint("DistanceX", 2, 2, 2, 1, Q("0.1875 in")))
sketch15.addConstraint(Sketcher.Constraint("DistanceY", 3, 1, 3, 2, Q("0.125 in")))
sketch15.addConstraint(Sketcher.Constraint("DistanceY", -1, 1, 3, 2, Q("2.75 in")))
sketch15.addConstraint(Sketcher.Constraint("DistanceX", -1, 1, 0, 2, Q("0.225 in")))
sketch15.setExpression("Constraints[12]", "Params.sketch15_width")
sketch15.setExpression("Constraints[13]", "Params.sketch15_height")
sketch15.setExpression("Constraints[14]", "Params.sketch15_width2")
sketch15.setExpression("Constraints[15]", "Params.sketch15_height2")
pad4 = body2.newObject("PartDesign::Pad", "Pad003")
pad4.Profile = sketch15
pad4.setExpression("Length", "Params.pad4_length")
body3 = doc.addObject("PartDesign::Body", "Body002")

sketch16 = body3.newObject("Sketcher::SketchObject", "Sketch015")
sketch16.AttachmentSupport = (doc.getObject("YZ_Plane002"), [""])
sketch16.MapMode = "FlatFace"
sketch16.AttachmentOffset = App.Placement(V(0, 0, -1 * 25.4), App.Rotation())
add_polygon(sketch16, [(41.275, 60.325), (41.275, 69.85), (33.3375, 69.85), (33.3375, 66.675), (28.575, 66.675), (28.575, 60.325)])
sketch16.addConstraint(Sketcher.Constraint("Vertical", 0))
sketch16.addConstraint(Sketcher.Constraint("Horizontal", 1))
sketch16.addConstraint(Sketcher.Constraint("Vertical", 2))
sketch16.addConstraint(Sketcher.Constraint("Horizontal", 3))
sketch16.addConstraint(Sketcher.Constraint("Vertical", 4))
sketch16.addConstraint(Sketcher.Constraint("Horizontal", 5))
sketch16.addConstraint(Sketcher.Constraint("DistanceX", 5, 1, 5, 2, Q("0.5 in")))
sketch16.addConstraint(Sketcher.Constraint("DistanceY", 4, 2, 4, 1, Q("0.25 in")))
sketch16.addConstraint(Sketcher.Constraint("DistanceX", 1, 2, 1, 1, Q("0.3125 in")))
sketch16.addConstraint(Sketcher.Constraint("DistanceY", 0, 1, 0, 2, Q("0.375 in")))
sketch16.addConstraint(Sketcher.Constraint("DistanceY", -1, 1, 0, 2, Q("2.75 in")))
sketch16.addConstraint(Sketcher.Constraint("DistanceX", -1, 1, 0, 2, Q("1.625 in")))
sketch16.setExpression("Constraints[12]", "Params.sketch16_width")
sketch16.setExpression("Constraints[13]", "Params.sketch16_height")
sketch16.setExpression("Constraints[14]", "Params.sketch16_width2")
sketch16.setExpression("Constraints[15]", "Params.sketch16_height2")
pad5 = body3.newObject("PartDesign::Pad", "Pad004")
pad5.Profile = sketch16
pad5.setExpression("Length", "Params.pad5_length")
body4 = doc.addObject("PartDesign::Body", "Body003")

sketch17 = body4.newObject("Sketcher::SketchObject", "Sketch016")
sketch17.AttachmentSupport = (doc.getObject("XY_Plane003"), [""])
sketch17.MapMode = "FlatFace"
sketch17.AttachmentOffset = App.Placement(V(0, 0, 3.25 * 25.4), App.Rotation())
add_polygon(sketch17, [(12.7, -7.1628), (-6.35, -7.1628), (-6.35, -22.4028), (12.7, -22.4028)])
sketch17.addGeometry(Part.Circle(V(0, -14.8082, 0), V(0, 0, 1), 1.5875), False)
sketch17.addConstraint(Sketcher.Constraint("Horizontal", 0))
sketch17.addConstraint(Sketcher.Constraint("Vertical", 1))
sketch17.addConstraint(Sketcher.Constraint("Horizontal", 2))
sketch17.addConstraint(Sketcher.Constraint("Vertical", 3))
sketch17.addConstraint(Sketcher.Constraint("PointOnObject", 4, 3, -2))
sketch17.addConstraint(Sketcher.Constraint("Diameter", 4, Q("0.125 in")))
sketch17.addConstraint(Sketcher.Constraint("DistanceY", 1, 2, 1, 1, Q("0.6 in")))
sketch17.addConstraint(Sketcher.Constraint("DistanceX", 0, 2, 0, 1, Q("0.75 in")))
sketch17.addConstraint(Sketcher.Constraint("DistanceX", -1, 1, 2, 2, Q("0.5 in")))
sketch17.addConstraint(Sketcher.Constraint("DistanceY", 4, 3, -1, 1, Q("0.583 in")))
sketch17.addConstraint(Sketcher.Constraint("DistanceY", 0, 2, -1, 1, Q("0.282 in")))
sketch17.setExpression("Constraints[9]", "Params.sketch17_diameter")
sketch17.setExpression("Constraints[10]", "Params.sketch17_height")
sketch17.setExpression("Constraints[11]", "Params.sketch17_width")
pad6 = body4.newObject("PartDesign::Pad", "Pad005")
pad6.Profile = sketch17
pad6.setExpression("Length", "Params.pad6_length")
pad6.Reversed = True

doc.recompute()
